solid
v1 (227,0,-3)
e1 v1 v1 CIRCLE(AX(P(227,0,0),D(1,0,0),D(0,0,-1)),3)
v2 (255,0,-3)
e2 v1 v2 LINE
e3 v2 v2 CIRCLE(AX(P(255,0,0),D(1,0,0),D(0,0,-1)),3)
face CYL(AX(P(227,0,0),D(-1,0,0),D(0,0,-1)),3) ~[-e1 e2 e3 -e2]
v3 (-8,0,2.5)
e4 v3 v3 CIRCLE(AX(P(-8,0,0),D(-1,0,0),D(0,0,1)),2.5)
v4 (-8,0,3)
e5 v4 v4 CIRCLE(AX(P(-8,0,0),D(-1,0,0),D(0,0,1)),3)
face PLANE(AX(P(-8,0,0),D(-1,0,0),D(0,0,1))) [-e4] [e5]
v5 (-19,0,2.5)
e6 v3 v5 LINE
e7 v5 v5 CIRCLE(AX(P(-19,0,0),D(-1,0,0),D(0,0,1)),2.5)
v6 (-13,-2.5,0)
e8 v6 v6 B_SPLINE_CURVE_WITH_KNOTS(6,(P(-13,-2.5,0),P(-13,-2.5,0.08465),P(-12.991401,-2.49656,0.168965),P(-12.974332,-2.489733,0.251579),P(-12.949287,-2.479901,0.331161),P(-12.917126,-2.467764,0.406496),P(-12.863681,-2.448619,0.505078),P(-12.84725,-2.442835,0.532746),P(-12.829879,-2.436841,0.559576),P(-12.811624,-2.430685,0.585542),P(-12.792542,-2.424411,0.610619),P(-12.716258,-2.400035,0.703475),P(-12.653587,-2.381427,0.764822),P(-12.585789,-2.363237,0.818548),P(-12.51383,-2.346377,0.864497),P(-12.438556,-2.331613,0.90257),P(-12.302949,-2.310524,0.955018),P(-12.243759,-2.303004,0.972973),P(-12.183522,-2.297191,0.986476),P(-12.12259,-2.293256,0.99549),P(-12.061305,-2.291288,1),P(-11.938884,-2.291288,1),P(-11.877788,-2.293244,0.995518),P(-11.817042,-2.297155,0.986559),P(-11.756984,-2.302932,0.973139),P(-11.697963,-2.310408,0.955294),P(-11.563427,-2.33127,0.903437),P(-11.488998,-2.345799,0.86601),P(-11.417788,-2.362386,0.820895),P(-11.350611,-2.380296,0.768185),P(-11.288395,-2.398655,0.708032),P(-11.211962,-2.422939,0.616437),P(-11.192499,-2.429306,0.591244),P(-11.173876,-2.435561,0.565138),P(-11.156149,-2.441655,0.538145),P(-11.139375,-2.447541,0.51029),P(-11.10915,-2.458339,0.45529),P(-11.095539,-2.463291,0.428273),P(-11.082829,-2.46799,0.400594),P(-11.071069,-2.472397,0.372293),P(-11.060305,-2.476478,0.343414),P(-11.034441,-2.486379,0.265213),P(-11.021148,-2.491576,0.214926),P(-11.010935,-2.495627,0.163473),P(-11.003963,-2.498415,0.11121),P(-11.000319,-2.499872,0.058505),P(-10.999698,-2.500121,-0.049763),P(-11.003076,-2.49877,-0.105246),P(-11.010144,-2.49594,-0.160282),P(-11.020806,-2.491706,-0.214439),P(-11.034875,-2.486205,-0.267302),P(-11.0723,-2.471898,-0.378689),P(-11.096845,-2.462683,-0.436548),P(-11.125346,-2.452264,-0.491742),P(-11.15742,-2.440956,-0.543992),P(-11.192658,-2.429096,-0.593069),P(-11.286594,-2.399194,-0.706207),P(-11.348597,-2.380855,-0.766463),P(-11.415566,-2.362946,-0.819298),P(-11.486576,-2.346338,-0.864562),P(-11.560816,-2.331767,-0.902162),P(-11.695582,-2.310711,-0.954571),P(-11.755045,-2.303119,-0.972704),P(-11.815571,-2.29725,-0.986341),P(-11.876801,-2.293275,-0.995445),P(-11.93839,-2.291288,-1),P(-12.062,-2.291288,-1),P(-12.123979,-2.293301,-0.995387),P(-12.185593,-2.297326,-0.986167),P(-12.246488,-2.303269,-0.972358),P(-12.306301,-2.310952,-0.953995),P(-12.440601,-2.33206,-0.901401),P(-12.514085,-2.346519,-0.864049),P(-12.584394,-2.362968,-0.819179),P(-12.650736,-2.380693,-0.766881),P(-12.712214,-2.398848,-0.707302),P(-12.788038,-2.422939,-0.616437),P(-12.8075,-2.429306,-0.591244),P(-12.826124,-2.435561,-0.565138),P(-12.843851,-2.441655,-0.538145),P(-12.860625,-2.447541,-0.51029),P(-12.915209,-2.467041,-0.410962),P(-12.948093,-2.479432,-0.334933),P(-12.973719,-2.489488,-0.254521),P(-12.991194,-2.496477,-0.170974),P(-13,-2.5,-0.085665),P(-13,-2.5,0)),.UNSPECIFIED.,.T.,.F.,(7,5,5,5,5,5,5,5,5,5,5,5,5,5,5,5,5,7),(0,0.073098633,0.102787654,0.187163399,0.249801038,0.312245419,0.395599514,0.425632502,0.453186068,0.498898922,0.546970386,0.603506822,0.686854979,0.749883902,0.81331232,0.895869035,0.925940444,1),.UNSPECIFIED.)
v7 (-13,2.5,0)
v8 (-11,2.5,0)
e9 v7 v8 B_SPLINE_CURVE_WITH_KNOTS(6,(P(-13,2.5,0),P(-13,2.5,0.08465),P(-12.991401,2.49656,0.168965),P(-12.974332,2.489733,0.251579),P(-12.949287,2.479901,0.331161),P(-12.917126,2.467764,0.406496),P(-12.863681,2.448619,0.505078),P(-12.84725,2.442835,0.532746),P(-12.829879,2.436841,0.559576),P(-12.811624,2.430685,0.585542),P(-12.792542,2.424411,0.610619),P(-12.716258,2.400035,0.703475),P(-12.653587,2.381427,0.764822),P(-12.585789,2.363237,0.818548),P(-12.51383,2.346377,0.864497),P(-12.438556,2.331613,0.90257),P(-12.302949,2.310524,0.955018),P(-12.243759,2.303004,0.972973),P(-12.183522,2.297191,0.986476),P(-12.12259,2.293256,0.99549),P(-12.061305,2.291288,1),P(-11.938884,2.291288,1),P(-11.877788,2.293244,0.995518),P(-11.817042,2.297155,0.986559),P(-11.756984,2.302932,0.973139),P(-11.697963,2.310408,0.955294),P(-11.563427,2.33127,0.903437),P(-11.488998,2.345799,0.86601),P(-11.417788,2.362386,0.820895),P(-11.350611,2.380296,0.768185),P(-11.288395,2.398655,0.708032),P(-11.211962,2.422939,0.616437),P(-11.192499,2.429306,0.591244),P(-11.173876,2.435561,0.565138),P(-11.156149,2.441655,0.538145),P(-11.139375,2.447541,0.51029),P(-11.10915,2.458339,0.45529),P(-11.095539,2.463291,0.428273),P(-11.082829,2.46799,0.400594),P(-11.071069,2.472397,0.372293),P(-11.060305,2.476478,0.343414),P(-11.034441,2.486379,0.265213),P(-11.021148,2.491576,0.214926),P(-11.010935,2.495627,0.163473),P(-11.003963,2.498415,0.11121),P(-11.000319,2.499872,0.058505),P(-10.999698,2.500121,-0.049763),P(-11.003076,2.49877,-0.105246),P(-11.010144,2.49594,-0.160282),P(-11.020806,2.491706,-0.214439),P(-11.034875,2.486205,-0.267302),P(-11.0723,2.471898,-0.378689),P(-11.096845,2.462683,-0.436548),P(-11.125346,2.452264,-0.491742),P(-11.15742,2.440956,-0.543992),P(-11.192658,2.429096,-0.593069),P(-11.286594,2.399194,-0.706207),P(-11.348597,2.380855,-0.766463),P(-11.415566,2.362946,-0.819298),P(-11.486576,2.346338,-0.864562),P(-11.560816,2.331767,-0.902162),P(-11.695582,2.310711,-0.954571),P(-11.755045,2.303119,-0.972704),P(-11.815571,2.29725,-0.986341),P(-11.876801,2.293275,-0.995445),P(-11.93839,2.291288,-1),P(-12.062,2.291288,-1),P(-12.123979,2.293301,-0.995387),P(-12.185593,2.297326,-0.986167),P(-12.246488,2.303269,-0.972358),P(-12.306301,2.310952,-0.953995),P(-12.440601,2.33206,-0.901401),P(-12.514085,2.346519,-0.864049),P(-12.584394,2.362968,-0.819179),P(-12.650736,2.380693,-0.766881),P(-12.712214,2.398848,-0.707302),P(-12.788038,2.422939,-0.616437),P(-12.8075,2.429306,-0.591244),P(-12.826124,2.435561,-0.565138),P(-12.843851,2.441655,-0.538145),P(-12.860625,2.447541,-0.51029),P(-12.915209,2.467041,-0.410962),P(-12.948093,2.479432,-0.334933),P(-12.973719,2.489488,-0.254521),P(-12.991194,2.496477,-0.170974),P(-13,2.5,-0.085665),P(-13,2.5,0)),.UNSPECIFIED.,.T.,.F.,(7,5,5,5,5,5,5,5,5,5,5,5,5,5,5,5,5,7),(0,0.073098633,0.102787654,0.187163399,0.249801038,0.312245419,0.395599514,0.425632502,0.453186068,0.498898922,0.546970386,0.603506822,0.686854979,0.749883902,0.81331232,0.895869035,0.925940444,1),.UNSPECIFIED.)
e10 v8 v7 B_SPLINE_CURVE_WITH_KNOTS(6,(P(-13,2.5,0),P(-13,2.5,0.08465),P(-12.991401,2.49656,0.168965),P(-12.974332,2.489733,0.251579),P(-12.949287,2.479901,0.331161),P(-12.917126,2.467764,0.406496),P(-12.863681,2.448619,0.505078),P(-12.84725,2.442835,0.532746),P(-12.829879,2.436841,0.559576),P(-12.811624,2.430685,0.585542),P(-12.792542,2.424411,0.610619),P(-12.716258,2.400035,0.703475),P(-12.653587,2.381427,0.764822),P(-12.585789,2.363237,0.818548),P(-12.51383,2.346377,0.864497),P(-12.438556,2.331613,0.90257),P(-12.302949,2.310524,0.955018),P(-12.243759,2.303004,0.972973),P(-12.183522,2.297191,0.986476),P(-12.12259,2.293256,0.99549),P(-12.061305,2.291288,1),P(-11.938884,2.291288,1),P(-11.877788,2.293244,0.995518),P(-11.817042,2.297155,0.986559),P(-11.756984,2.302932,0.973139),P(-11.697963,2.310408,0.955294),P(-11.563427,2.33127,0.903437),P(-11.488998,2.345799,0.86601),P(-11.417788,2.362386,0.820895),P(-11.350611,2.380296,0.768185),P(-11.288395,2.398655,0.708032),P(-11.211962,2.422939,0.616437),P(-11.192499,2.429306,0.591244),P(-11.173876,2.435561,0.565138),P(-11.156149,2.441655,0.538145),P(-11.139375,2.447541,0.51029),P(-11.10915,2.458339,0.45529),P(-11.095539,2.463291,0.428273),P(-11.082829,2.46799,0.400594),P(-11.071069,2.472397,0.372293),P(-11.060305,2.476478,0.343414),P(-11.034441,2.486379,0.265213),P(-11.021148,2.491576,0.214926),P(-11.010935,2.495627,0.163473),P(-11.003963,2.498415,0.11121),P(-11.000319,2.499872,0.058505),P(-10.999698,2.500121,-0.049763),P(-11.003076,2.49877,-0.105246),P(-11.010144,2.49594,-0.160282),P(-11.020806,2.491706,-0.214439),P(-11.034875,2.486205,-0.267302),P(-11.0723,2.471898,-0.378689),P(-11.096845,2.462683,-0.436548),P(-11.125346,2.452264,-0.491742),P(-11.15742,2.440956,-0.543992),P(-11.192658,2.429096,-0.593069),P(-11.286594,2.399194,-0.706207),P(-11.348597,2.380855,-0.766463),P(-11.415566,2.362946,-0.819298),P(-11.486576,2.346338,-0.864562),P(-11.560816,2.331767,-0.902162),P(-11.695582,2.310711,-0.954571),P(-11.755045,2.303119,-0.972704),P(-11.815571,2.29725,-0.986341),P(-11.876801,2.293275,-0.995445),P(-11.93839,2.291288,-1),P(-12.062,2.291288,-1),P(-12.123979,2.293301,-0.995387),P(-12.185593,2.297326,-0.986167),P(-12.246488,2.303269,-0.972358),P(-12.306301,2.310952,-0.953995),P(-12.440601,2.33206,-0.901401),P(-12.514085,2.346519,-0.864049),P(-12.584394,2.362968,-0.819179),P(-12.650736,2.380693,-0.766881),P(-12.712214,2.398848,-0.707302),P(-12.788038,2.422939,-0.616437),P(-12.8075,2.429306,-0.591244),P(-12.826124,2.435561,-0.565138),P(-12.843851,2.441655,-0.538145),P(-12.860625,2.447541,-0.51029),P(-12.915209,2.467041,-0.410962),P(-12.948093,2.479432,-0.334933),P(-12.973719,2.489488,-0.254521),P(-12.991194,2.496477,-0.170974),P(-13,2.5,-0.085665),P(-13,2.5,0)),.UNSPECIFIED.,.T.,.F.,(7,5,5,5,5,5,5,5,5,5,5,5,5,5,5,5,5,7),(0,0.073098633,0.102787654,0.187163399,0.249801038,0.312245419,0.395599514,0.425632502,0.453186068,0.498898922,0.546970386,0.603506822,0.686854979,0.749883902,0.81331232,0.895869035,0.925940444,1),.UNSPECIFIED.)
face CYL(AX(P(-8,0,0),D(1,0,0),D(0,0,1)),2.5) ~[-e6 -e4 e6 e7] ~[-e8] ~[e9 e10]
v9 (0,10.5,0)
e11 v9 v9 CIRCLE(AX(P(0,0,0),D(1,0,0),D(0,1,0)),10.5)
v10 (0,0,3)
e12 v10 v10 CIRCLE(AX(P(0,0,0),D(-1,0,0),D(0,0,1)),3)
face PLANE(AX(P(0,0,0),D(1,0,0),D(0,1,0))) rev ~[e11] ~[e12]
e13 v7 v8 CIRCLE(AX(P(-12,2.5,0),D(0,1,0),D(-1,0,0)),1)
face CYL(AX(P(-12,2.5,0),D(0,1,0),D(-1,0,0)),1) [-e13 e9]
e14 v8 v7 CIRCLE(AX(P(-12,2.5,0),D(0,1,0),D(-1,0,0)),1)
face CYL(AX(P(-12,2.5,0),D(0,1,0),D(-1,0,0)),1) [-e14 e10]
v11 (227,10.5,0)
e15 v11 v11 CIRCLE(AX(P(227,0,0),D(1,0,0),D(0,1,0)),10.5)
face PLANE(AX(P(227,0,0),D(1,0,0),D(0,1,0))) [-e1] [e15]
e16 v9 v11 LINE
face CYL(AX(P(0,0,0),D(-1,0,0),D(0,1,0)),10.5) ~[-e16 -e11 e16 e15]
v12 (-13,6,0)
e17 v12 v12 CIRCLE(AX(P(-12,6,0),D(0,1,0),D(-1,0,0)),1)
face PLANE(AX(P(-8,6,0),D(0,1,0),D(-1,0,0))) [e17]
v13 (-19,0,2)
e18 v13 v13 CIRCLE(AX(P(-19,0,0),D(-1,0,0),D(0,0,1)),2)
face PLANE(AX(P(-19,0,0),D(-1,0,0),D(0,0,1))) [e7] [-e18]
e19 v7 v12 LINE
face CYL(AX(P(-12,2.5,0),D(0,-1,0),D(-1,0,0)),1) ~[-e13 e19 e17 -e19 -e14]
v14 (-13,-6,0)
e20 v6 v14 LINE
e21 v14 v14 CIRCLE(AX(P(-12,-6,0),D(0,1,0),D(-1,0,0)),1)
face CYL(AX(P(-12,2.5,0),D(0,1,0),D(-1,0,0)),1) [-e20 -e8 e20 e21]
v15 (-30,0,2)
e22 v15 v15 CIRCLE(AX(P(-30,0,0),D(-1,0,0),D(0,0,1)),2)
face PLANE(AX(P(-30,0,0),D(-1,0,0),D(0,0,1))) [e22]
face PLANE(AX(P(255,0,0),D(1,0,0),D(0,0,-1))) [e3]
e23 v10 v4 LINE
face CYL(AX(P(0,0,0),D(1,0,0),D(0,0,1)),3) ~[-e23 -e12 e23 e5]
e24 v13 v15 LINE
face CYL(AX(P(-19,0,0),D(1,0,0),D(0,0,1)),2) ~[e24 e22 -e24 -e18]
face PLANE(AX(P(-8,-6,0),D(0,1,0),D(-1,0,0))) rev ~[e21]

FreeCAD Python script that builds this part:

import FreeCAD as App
import Part
import Sketcher

doc = App.newDocument("Part")
body = doc.addObject("PartDesign::Body", "Body")

# Sketch on YZ plane
sketch1 = doc.addObject("Sketcher::SketchObject", "Sketch")
body.addObject(sketch1)
sketch1.AttachmentSupport = (doc.YZ_Plane, [""])
sketch1.MapMode = "FlatFace"
sketch1.addGeometry(Part.Circle(App.Vector(0, 0, 0), App.Vector(0, 0, 1), 10), False)
sketch1.addConstraint(Sketcher.Constraint("Coincident", 0, 3, -1, 1))
sketch1.addConstraint(Sketcher.Constraint("Diameter", 0, 21.0))
pad1 = doc.addObject("PartDesign::Pad", "Pad")
body.addObject(pad1)
pad1.Profile = sketch1
pad1.Length = 227

# Sketch on YZ plane
sketch2 = doc.addObject("Sketcher::SketchObject", "Sketch001")
body.addObject(sketch2)
sketch2.AttachmentSupport = (doc.YZ_Plane, [""])
sketch2.MapMode = "FlatFace"
sketch2.addGeometry(Part.Circle(App.Vector(0, 0, 0), App.Vector(0, 0, 1), 3), False)
sketch2.addConstraint(Sketcher.Constraint("Coincident", 0, 3, -1, 1))
sketch2.addConstraint(Sketcher.Constraint("Diameter", 0, 6.0))
pad2 = doc.addObject("PartDesign::Pad", "Pad001")
body.addObject(pad2)
pad2.Profile = sketch2
pad2.Length = 8
pad2.Reversed = True

# Sketch on YZ plane
sketch3 = doc.addObject("Sketcher::SketchObject", "Sketch002")
body.addObject(sketch3)
sketch3.AttachmentSupport = (doc.YZ_Plane, [""])
sketch3.MapMode = "FlatFace"
sketch3.AttachmentOffset = App.Placement(App.Vector(0, 0, 227), App.Rotation())
sketch3.addGeometry(Part.Circle(App.Vector(0, 0, 0), App.Vector(0, 0, 1), 3), False)
sketch3.addConstraint(Sketcher.Constraint("Coincident", 0, 3, -1, 1))
sketch3.addConstraint(Sketcher.Constraint("Diameter", 0, 6.0))
pad3 = doc.addObject("PartDesign::Pad", "Pad002")
body.addObject(pad3)
pad3.Profile = sketch3
pad3.Length = 28

# Sketch on YZ plane
sketch4 = doc.addObject("Sketcher::SketchObject", "Sketch003")
body.addObject(sketch4)
sketch4.AttachmentSupport = (doc.YZ_Plane, [""])
sketch4.MapMode = "FlatFace"
sketch4.AttachmentOffset = App.Placement(App.Vector(0, 0, -8), App.Rotation())
sketch4.addGeometry(Part.Circle(App.Vector(0, 0, 0), App.Vector(0, 0, 1), 2.5), False)
sketch4.addConstraint(Sketcher.Constraint("Coincident", 0, 3, -1, 1))
sketch4.addConstraint(Sketcher.Constraint("Diameter", 0, 5.0))
pad4 = doc.addObject("PartDesign::Pad", "Pad003")
body.addObject(pad4)
pad4.Profile = sketch4
pad4.Length = 11
pad4.Reversed = True

# Sketch on XZ plane
sketch5 = doc.addObject("Sketcher::SketchObject", "Sketch004")
body.addObject(sketch5)
sketch5.AttachmentSupport = (doc.XZ_Plane, [""])
sketch5.MapMode = "FlatFace"
sketch5.AttachmentOffset = App.Placement(App.Vector(0, 0, -2.5), App.Rotation())
sketch5.addGeometry(Part.Circle(App.Vector(-12, 0, 0), App.Vector(0, 0, 1), 1), False)
sketch5.addConstraint(Sketcher.Constraint("PointOnObject", 0, 3, -1))
sketch5.addConstraint(Sketcher.Constraint("Diameter", 0, 2.0))
sketch5.addConstraint(Sketcher.Constraint("DistanceX", 0, 3, -1, 1, 12.0))
pad5 = doc.addObject("PartDesign::Pad", "Pad004")
body.addObject(pad5)
pad5.Profile = sketch5
pad5.Type = "TwoLengths"
pad5.Length = 3.5
pad5.Length2 = 8.5
pad5.Reversed = True

# Sketch on YZ plane
sketch6 = doc.addObject("Sketcher::SketchObject", "Sketch005")
body.addObject(sketch6)
sketch6.AttachmentSupport = (doc.YZ_Plane, [""])
sketch6.MapMode = "FlatFace"
sketch6.AttachmentOffset = App.Placement(App.Vector(0, 0, -19), App.Rotation())
sketch6.addGeometry(Part.Circle(App.Vector(0, 0, 0), App.Vector(0, 0, 1), 2), False)
sketch6.addConstraint(Sketcher.Constraint("Coincident", 0, 3, -1, 1))
sketch6.addConstraint(Sketcher.Constraint("Diameter", 0, 4.0))
pad6 = doc.addObject("PartDesign::Pad", "Pad005")
body.addObject(pad6)
pad6.Profile = sketch6
pad6.Length = 11
pad6.Reversed = True

doc.recompute()
